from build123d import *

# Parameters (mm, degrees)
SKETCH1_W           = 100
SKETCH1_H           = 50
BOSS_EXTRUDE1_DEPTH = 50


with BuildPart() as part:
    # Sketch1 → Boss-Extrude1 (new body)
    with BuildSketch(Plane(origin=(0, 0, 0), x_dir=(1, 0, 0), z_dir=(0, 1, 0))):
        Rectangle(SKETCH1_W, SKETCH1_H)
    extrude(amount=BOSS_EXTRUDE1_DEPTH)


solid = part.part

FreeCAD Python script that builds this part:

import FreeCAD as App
import Part
import Sketcher
from FreeCAD import Vector
Q = App.Units.Quantity


def add_polygon(sketch, points):
    """Adds a closed chain of lines whose ends are joined by coincident constraints."""
    first, n = sketch.GeometryCount, len(points)
    for a, b in zip(points, points[1:] + points[:1]):
        sketch.addGeometry(Part.LineSegment(App.Vector(*a, 0), App.Vector(*b, 0)), False)
    for i in range(n):
        sketch.addConstraint(Sketcher.Constraint("Coincident", first + i, 2, first + (i + 1) % n, 1))

doc = App.newDocument("Part")
body = doc.addObject("PartDesign::Body", "Body")

# Sketch on XZ plane
sketch1 = body.newObject("Sketcher::SketchObject", "Sketch")
sketch1.AttachmentSupport = (doc.getObject("XZ_Plane"), [""])
sketch1.MapMode = "FlatFace"
add_polygon(sketch1, [(-50, -25), (-50, 25), (50, 25), (50, -25)])  # lines 0-3
sketch1.addConstraint([
    Sketcher.Constraint("Vertical", 0),
    Sketcher.Constraint("Horizontal", 1),
    Sketcher.Constraint("Vertical", 2),
    Sketcher.Constraint("Horizontal", 3),
    Sketcher.Constraint("Symmetric", 0, 2, 2, 2, -1, 1),
    Sketcher.Constraint("DistanceX", 1, 1, 1, 2, Q("100 mm")),
    Sketcher.Constraint("DistanceY", 0, 1, 0, 2, Q("50 mm")),
])
pad1 = body.newObject("PartDesign::Pad", "Pad")
pad1.Profile = sketch1
pad1.Length = 50
pad1.Reversed = True

doc.recompute()
